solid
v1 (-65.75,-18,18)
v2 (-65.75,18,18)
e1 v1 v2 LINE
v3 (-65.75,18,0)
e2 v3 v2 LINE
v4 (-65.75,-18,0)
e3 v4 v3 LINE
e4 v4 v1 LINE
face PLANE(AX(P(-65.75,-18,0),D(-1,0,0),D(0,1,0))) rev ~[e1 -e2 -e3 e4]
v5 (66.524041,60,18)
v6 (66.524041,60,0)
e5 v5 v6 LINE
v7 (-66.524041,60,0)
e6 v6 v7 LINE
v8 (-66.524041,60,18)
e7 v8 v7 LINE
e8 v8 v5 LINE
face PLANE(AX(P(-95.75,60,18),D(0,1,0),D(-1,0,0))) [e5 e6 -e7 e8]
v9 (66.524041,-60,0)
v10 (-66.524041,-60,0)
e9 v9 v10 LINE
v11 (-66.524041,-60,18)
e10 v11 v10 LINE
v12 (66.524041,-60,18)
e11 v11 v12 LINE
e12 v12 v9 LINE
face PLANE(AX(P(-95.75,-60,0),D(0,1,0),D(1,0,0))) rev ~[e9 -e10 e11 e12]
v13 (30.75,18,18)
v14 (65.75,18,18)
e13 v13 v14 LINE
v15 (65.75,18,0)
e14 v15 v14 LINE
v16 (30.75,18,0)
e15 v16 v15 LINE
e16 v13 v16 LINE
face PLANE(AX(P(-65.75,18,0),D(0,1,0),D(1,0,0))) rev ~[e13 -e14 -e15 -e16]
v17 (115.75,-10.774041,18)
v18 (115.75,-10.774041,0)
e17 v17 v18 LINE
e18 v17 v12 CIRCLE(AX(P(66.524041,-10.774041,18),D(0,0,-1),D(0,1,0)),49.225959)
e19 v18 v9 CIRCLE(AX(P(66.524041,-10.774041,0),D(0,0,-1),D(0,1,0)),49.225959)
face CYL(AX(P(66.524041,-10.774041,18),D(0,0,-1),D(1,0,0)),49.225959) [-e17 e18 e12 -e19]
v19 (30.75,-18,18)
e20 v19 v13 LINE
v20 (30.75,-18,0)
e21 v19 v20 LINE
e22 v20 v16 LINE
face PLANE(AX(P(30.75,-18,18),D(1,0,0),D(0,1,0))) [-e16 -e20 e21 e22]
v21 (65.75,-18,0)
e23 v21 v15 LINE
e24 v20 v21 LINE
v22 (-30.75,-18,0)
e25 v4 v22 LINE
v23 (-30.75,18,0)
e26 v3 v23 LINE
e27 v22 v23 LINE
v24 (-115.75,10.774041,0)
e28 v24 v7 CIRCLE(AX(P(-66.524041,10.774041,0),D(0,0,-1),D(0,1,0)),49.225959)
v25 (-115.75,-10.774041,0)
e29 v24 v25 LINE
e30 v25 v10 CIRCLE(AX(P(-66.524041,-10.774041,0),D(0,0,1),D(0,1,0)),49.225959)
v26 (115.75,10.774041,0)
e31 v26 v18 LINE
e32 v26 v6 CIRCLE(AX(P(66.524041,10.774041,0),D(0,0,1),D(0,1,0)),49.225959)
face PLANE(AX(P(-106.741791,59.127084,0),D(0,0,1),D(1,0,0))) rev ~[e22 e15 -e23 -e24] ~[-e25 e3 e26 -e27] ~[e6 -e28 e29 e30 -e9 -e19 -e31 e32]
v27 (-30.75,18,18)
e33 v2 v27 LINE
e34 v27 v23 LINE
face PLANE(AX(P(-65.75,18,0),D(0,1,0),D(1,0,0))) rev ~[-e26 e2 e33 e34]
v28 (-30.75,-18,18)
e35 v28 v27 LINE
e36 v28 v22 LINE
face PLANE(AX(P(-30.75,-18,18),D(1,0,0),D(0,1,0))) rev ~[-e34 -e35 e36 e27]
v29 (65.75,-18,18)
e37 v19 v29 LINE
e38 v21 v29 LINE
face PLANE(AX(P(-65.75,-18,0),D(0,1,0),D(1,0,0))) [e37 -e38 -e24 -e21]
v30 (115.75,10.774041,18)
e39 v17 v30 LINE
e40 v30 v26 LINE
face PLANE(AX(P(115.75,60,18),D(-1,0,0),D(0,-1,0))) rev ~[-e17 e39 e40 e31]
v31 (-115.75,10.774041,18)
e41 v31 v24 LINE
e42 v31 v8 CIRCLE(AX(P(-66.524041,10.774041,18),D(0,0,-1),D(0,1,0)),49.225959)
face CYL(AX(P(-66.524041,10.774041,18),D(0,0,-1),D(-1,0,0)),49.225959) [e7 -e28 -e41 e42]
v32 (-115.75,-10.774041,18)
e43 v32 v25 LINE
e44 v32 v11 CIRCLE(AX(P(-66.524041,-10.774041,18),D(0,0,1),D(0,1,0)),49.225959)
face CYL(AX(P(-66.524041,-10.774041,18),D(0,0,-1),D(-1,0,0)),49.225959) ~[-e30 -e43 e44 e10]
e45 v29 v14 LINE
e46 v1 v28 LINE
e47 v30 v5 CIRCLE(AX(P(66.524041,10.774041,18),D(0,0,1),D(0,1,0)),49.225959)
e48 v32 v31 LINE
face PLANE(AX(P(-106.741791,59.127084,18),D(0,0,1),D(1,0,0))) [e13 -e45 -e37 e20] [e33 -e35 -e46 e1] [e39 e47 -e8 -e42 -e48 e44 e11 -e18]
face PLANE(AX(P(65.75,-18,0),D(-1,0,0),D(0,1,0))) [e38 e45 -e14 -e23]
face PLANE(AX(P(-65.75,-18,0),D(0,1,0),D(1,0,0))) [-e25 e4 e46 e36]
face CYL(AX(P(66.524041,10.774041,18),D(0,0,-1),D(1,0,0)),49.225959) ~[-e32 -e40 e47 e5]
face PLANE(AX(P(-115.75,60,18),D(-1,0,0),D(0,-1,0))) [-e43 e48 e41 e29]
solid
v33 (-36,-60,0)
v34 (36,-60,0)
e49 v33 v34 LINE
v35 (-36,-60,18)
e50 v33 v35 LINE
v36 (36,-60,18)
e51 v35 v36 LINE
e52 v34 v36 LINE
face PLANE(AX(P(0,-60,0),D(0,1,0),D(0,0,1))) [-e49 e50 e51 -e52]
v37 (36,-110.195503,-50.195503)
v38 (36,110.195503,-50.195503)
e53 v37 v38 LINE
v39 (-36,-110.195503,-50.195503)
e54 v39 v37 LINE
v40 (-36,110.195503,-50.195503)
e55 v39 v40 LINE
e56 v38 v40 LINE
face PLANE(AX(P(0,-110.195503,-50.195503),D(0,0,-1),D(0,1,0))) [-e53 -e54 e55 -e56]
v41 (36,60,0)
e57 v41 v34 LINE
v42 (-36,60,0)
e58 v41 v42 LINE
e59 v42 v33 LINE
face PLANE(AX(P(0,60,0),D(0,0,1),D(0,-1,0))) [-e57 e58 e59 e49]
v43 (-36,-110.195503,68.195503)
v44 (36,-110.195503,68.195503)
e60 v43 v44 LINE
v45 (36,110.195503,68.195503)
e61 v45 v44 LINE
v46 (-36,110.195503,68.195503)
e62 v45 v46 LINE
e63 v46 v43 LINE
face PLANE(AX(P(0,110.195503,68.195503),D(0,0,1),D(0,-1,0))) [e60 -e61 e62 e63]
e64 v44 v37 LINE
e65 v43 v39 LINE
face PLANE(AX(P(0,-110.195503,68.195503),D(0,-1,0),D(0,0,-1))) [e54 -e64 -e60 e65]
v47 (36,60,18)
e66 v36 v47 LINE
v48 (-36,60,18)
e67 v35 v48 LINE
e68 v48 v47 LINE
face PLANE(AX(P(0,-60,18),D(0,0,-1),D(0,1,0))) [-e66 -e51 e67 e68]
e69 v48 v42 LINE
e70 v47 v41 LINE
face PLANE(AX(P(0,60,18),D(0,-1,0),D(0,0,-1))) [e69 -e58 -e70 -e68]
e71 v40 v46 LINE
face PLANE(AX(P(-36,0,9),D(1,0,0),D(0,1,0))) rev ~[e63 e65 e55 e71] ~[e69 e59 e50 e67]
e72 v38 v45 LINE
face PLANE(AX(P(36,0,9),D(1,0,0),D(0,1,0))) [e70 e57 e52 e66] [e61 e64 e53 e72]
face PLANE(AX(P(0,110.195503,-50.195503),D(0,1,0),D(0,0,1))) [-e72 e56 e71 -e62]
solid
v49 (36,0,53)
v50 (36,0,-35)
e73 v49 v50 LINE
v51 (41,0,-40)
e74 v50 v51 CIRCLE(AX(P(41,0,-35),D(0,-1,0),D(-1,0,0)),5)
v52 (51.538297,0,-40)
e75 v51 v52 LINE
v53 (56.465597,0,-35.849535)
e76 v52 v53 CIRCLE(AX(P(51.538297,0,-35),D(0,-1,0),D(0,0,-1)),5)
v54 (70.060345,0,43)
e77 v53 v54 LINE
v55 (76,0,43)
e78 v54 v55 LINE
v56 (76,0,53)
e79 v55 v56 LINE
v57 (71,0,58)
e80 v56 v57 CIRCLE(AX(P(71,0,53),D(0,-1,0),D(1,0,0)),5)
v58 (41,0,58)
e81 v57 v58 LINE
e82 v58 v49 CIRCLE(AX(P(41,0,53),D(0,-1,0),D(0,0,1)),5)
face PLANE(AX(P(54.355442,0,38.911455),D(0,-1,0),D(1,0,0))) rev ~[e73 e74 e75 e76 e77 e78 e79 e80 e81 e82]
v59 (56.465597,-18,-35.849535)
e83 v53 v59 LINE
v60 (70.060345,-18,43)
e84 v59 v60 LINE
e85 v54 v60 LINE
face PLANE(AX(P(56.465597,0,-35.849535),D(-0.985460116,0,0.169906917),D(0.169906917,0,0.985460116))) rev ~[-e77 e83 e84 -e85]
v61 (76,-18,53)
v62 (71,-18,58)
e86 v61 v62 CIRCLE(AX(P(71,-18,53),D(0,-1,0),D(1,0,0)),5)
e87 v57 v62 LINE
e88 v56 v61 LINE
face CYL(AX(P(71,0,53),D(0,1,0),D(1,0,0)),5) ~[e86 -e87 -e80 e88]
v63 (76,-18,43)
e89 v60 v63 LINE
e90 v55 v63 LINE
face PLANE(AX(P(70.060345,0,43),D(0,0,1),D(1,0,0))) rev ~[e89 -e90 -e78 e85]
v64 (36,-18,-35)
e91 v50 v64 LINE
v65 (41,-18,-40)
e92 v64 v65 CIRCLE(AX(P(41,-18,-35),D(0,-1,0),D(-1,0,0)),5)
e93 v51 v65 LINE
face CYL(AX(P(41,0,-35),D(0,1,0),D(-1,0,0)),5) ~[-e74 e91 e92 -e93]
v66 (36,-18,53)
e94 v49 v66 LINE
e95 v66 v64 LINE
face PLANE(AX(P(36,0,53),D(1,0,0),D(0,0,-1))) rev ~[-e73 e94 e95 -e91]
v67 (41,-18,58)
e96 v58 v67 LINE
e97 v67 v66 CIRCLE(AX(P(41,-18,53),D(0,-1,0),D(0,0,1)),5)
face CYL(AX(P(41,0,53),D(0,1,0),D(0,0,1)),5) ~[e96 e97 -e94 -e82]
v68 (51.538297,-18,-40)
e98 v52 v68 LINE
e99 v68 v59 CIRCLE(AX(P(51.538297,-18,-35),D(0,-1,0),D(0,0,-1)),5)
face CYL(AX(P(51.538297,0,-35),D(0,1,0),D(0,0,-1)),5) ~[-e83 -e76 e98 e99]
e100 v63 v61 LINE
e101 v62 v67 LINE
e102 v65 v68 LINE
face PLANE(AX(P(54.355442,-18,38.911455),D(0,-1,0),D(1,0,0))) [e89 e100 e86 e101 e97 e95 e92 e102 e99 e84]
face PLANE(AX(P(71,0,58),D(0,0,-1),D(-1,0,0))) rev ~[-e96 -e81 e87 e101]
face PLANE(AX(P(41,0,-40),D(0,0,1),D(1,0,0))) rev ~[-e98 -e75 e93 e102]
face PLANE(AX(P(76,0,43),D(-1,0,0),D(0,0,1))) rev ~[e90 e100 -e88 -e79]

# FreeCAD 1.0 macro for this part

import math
import FreeCAD as App
import Part
import Sketcher
from FreeCAD import Vector


def edges_at(feature, points):
    """Names of the edges that pass closest to the given points."""
    edges = feature.Shape.Edges
    near = lambda p: min(range(len(edges)), key=lambda i: edges[i].distToShape(Part.Vertex(*p))[0])
    return sorted({f"Edge{near(p) + 1}" for p in points})


def add_polygon(sketch, points):
    """Adds a closed chain of lines whose ends are joined by coincident constraints."""
    first, n = sketch.GeometryCount, len(points)
    for a, b in zip(points, points[1:] + points[:1]):
        sketch.addGeometry(Part.LineSegment(App.Vector(*a, 0), App.Vector(*b, 0)), False)
    for i in range(n):
        sketch.addConstraint(Sketcher.Constraint("Coincident", first + i, 2, first + (i + 1) % n, 1))

doc = App.newDocument("Part")
body = doc.addObject("PartDesign::Body", "Body")

sketch1 = body.newObject("Sketcher::SketchObject", "Sketch")
sketch1.AttachmentSupport = (doc.getObject("XY_Plane"), [""])
sketch1.MapMode = "FlatFace"
sketch1.addGeometry(Part.LineSegment(Vector(-95.75, -60, 0), Vector(95.75, -60, 0)), False)
sketch1.addGeometry(Part.ArcOfCircle(Part.Circle(Vector(95.75, -10, 0), Vector(0, 0, 1), 50), math.radians(-90), math.radians(0)), False)
sketch1.addGeometry(Part.LineSegment(Vector(145.75, -10, 0), Vector(145.75, 10, 0)), False)
sketch1.addGeometry(Part.ArcOfCircle(Part.Circle(Vector(95.75, 10, 0), Vector(0, 0, 1), 50), math.radians(0), math.radians(90)), False)
sketch1.addGeometry(Part.LineSegment(Vector(95.75, 60, 0), Vector(-95.75, 60, 0)), False)
sketch1.addGeometry(Part.ArcOfCircle(Part.Circle(Vector(-95.75, 10, 0), Vector(0, 0, 1), 50), math.radians(90), math.radians(180)), False)
sketch1.addGeometry(Part.LineSegment(Vector(-145.75, 10, 0), Vector(-145.75, -10, 0)), False)
sketch1.addGeometry(Part.ArcOfCircle(Part.Circle(Vector(-95.75, -10, 0), Vector(0, 0, 1), 50), math.radians(180), math.radians(270)), False)
add_polygon(sketch1, [(65.75, -18), (-65.75, -18), (-65.75, 18), (65.75, 18)])
sketch1.addConstraint([
    Sketcher.Constraint("Tangent", 0, 2, 1, 1),
    Sketcher.Constraint("Tangent", 1, 2, 2, 1),
    Sketcher.Constraint("Tangent", 2, 2, 3, 1),
    Sketcher.Constraint("Tangent", 3, 2, 4, 1),
    Sketcher.Constraint("Tangent", 4, 2, 5, 1),
    Sketcher.Constraint("Tangent", 5, 2, 6, 1),
    Sketcher.Constraint("Tangent", 6, 2, 7, 1),
    Sketcher.Constraint("Tangent", 7, 2, 0, 1),
    Sketcher.Constraint("Horizontal", 0),
    Sketcher.Constraint("Vertical", 2),
    Sketcher.Constraint("Horizontal", 4),
    Sketcher.Constraint("Vertical", 6),
    Sketcher.Constraint("Horizontal", 8),
    Sketcher.Constraint("Vertical", 9),
    Sketcher.Constraint("Horizontal", 10),
    Sketcher.Constraint("Vertical", 11),
    Sketcher.Constraint("Equal", 1, 3),
    Sketcher.Constraint("Equal", 3, 5),
    Sketcher.Constraint("Equal", 5, 7),
    Sketcher.Constraint("Symmetric", 1, 3, 5, 3, -1, 1),
    Sketcher.Constraint("Symmetric", 8, 2, 10, 2, -1, 1),
    Sketcher.Constraint("Radius", 1, 50.0),
    Sketcher.Constraint("DistanceY", 2, 1, 2, 2, 20.0),
    Sketcher.Constraint("DistanceY", 9, 1, 9, 2, 36.0),
    Sketcher.Constraint("DistanceX", 0, 1, 0, 2, 191.5),
    Sketcher.Constraint("DistanceX", 8, 2, 8, 1, 131.5),
])
pad1 = body.newObject("PartDesign::Pad", "Pad")
pad1.Profile = sketch1
pad1.Length = 18

sketch2 = body.newObject("Sketcher::SketchObject", "Sketch001")
sketch2.AttachmentSupport = (doc.getObject("XY_Plane"), [""])
sketch2.MapMode = "FlatFace"
sketch2.AttachmentOffset = App.Placement(Vector(0, 0, 18), App.Rotation())
add_polygon(sketch2, [(-30.75, 18), (-30.75, -18), (30.75, -18), (30.75, 18)])
sketch2.addConstraint([
    Sketcher.Constraint("Vertical", 0),
    Sketcher.Constraint("Horizontal", 1),
    Sketcher.Constraint("Vertical", 2),
    Sketcher.Constraint("Horizontal", 3),
    Sketcher.Constraint("Symmetric", 0, 2, 2, 2, -1, 1),
    Sketcher.Constraint("DistanceY", 0, 2, 0, 1, 36.0),
    Sketcher.Constraint("DistanceX", 1, 1, 1, 2, 61.5),
])
pad2 = body.newObject("PartDesign::Pad", "Pad001")
pad2.Profile = sketch2
pad2.Length = 18
pad2.Reversed = True

sketch3 = body.newObject("Sketcher::SketchObject", "Sketch002")
sketch3.AttachmentSupport = (doc.getObject("XY_Plane"), [""])
sketch3.MapMode = "FlatFace"
sketch3.AttachmentOffset = App.Placement(Vector(0, 0, 18), App.Rotation())
add_polygon(sketch3, [(-171.135291, -60), (-115.75, -60), (-115.75, 60), (-171.135291, 60)])
add_polygon(sketch3, [(115.75, -60), (180.930644, -60), (180.930644, 60), (115.75, 60)])
sketch3.addConstraint([
    Sketcher.Constraint("Horizontal", 0),
    Sketcher.Constraint("Vertical", 1),
    Sketcher.Constraint("Horizontal", 2),
    Sketcher.Constraint("Vertical", 3),
    Sketcher.Constraint("Horizontal", 4),
    Sketcher.Constraint("Vertical", 5),
    Sketcher.Constraint("Horizontal", 6),
    Sketcher.Constraint("Vertical", 7),
    Sketcher.Constraint("Symmetric", 0, 2, 6, 2, -1, 1),
    Sketcher.Constraint("Horizontal", 3, 2, 4, 2),
    Sketcher.Constraint("Horizontal", 2, 2, 5, 2),
    Sketcher.Constraint("DistanceY", 1, 1, 1, 2, 120.0),
    Sketcher.Constraint("DistanceX", 1, 2, 6, 2, 231.5),
    Sketcher.Constraint("DistanceX", 0, 1, 0, 2, 55.385291),
    Sketcher.Constraint("DistanceX", 4, 1, 4, 2, 65.180644),
])
pocket1 = body.newObject("PartDesign::Pocket", "Pocket")
pocket1.Profile = sketch3
pocket1.Length = 25

sketch4 = body.newObject("Sketcher::SketchObject", "Sketch003")
sketch4.AttachmentSupport = (doc.getObject("XY_Plane"), [""])
sketch4.MapMode = "FlatFace"
sketch4.AttachmentOffset = App.Placement(Vector(0, 0, 18), App.Rotation())
sketch4.addGeometry([
    Part.LineSegment(Vector(-115.75, 60, 0), Vector(-115.75, 55.825757, 0)),
    Part.ArcOfCircle(Part.Circle(Vector(-95.75, 10, 0), Vector(0, 0, 1), 50), math.radians(90), math.radians(113.578178)),
    Part.LineSegment(Vector(-95.75, 60, 0), Vector(-115.75, 60, 0)),
    Part.ArcOfCircle(Part.Circle(Vector(95.75, 10, 0), Vector(0, 0, 1), 50), math.radians(66.421822), math.radians(90)),
    Part.LineSegment(Vector(115.75, 55.825757, 0), Vector(115.75, 60, 0)),
    Part.LineSegment(Vector(115.75, 60, 0), Vector(95.75, 60, 0)),
    Part.ArcOfCircle(Part.Circle(Vector(95.75, -10, 0), Vector(0, 0, 1), 50), math.radians(-90), math.radians(-66.421822)),
    Part.LineSegment(Vector(95.75, -60, 0), Vector(115.75, -60, 0)),
    Part.LineSegment(Vector(115.75, -60, 0), Vector(115.75, -55.825757, 0)),
    Part.LineSegment(Vector(-115.75, -55.825757, 0), Vector(-115.75, -60, 0)),
    Part.LineSegment(Vector(-115.75, -60, 0), Vector(-95.75, -60, 0)),
    Part.ArcOfCircle(Part.Circle(Vector(-95.75, -10, 0), Vector(0, 0, 1), 50), math.radians(-113.578178), math.radians(-90)),
], False)
sketch4.addConstraint([
    Sketcher.Constraint("Coincident", 0, 2, 1, 2),
    Sketcher.Constraint("Tangent", 1, 1, 2, 1),
    Sketcher.Constraint("Coincident", 2, 2, 0, 1),
    Sketcher.Constraint("Coincident", 3, 1, 4, 1),
    Sketcher.Constraint("Coincident", 4, 2, 5, 1),
    Sketcher.Constraint("Tangent", 5, 2, 3, 2),
    Sketcher.Constraint("Tangent", 6, 1, 7, 1),
    Sketcher.Constraint("Coincident", 7, 2, 8, 1),
    Sketcher.Constraint("Coincident", 8, 2, 6, 2),
    Sketcher.Constraint("Coincident", 9, 2, 10, 1),
    Sketcher.Constraint("Tangent", 10, 2, 11, 2),
    Sketcher.Constraint("Coincident", 11, 1, 9, 1),
    Sketcher.Constraint("Vertical", 0),
    Sketcher.Constraint("Horizontal", 2),
    Sketcher.Constraint("Vertical", 4),
    Sketcher.Constraint("Horizontal", 5),
    Sketcher.Constraint("Horizontal", 7),
    Sketcher.Constraint("Vertical", 8),
    Sketcher.Constraint("Vertical", 9),
    Sketcher.Constraint("Horizontal", 10),
    Sketcher.Constraint("Equal", 1, 3),
    Sketcher.Constraint("Equal", 3, 6),
    Sketcher.Constraint("Equal", 6, 11),
    Sketcher.Constraint("Symmetric", 1, 3, 6, 3, -1, 1),
    Sketcher.Constraint("Symmetric", 3, 3, 11, 3, -1, 1),
    Sketcher.Constraint("Symmetric", 1, 3, 3, 3, -2),
    Sketcher.Constraint("Horizontal", 0, 2, 3, 1),
    Sketcher.Constraint("Horizontal", 8, 2, 11, 1),
    Sketcher.Constraint("Vertical", 4, 2, 7, 2),
    Sketcher.Constraint("Radius", 1, 50.0),
    Sketcher.Constraint("DistanceX", 2, 2, 2, 1, 20.0),
    Sketcher.Constraint("DistanceY", -1, 1, 1, 3, 10.0),
    Sketcher.Constraint("DistanceX", 1, 3, 3, 3, 191.5),
])
pad3 = body.newObject("PartDesign::Pad", "Pad002")
pad3.Profile = sketch4
pad3.Length = 18
pad3.Reversed = True
doc.recompute()

fillet = body.newObject("PartDesign::Fillet", "Fillet")
fillet.Base = (pad3, edges_at(pad3, [
    (-115.75, 60, 9),
    (-115.75, -60, 9),
    (115.75, -60, 9),
    (115.75, 60, 9),
]))
fillet.Radius = 49.225959
body2 = doc.addObject("PartDesign::Body", "Body001")

sketch5 = body2.newObject("Sketcher::SketchObject", "Sketch004")
sketch5.AttachmentSupport = (doc.getObject("YZ_Plane001"), [""])
sketch5.MapMode = "FlatFace"
add_polygon(sketch5, [(110.195503, 68.195503), (-110.195503, 68.195503), (-110.195503, -50.195503), (110.195503, -50.195503)])
add_polygon(sketch5, [(60, 0), (-60, 0), (-60, 18), (60, 18)])
sketch5.addConstraint([
    Sketcher.Constraint("Horizontal", 0),
    Sketcher.Constraint("Vertical", 1),
    Sketcher.Constraint("Horizontal", 2),
    Sketcher.Constraint("Vertical", 3),
    Sketcher.Constraint("Horizontal", 4),
    Sketcher.Constraint("Vertical", 5),
    Sketcher.Constraint("Horizontal", 6),
    Sketcher.Constraint("Vertical", 7),
    Sketcher.Constraint("Symmetric", 4, 2, 7, 2, -1, 1),
    Sketcher.Constraint("DistanceX", 4, 2, 4, 1, 120.0),
    Sketcher.Constraint("DistanceY", 5, 1, 5, 2, 18.0),
    Sketcher.Constraint("DistanceX", 0, 2, 0, 1, 220.391005),
    Sketcher.Constraint("DistanceY", 1, 2, 1, 1, 118.391005),
    Sketcher.Constraint("DistanceX", 0, 2, -1, 1, 110.195503),
    Sketcher.Constraint("DistanceY", -1, 1, 0, 2, 68.195503),
])
pad4 = body2.newObject("PartDesign::Pad", "Pad003")
pad4.Profile = sketch5
pad4.Length = 72
pad4.Midplane = True
body3 = doc.addObject("PartDesign::Body", "Body002")

sketch6 = body3.newObject("Sketcher::SketchObject", "Sketch005")
sketch6.AttachmentSupport = (doc.getObject("XZ_Plane002"), [""])
sketch6.MapMode = "FlatFace"
sketch6.addGeometry([
    Part.ArcOfCircle(Part.Circle(Vector(41, 53, 0), Vector(0, 0, 1), 5), math.radians(90), math.radians(180)),
    Part.LineSegment(Vector(36, 53, 0), Vector(36, -35, 0)),
    Part.ArcOfCircle(Part.Circle(Vector(41, -35, 0), Vector(0, 0, 1), 5), math.radians(180), math.radians(270)),
    Part.LineSegment(Vector(41, -40, 0), Vector(51.538297, -40, 0)),
    Part.ArcOfCircle(Part.Circle(Vector(51.538297, -35, 0), Vector(0, 0, 1), 5), math.radians(-90), math.radians(-9.782407)),
    Part.LineSegment(Vector(56.465597, -35.849535, 0), Vector(70.060345, 43, 0)),
    Part.LineSegment(Vector(70.060345, 43, 0), Vector(76, 43, 0)),
    Part.LineSegment(Vector(76, 43, 0), Vector(76, 53, 0)),
    Part.ArcOfCircle(Part.Circle(Vector(71, 53, 0), Vector(0, 0, 1), 5), math.radians(0), math.radians(90)),
    Part.LineSegment(Vector(71, 58, 0), Vector(41, 58, 0)),
], False)
sketch6.addConstraint([
    Sketcher.Constraint("Tangent", 0, 2, 1, 1),
    Sketcher.Constraint("Tangent", 1, 2, 2, 1),
    Sketcher.Constraint("Tangent", 2, 2, 3, 1),
    Sketcher.Constraint("Tangent", 3, 2, 4, 1),
    Sketcher.Constraint("Tangent", 4, 2, 5, 1),
    Sketcher.Constraint("Coincident", 5, 2, 6, 1),
    Sketcher.Constraint("Coincident", 6, 2, 7, 1),
    Sketcher.Constraint("Tangent", 7, 2, 8, 1),
    Sketcher.Constraint("Tangent", 8, 2, 9, 1),
    Sketcher.Constraint("Tangent", 9, 2, 0, 1),
    Sketcher.Constraint("Vertical", 1),
    Sketcher.Constraint("Horizontal", 3),
    Sketcher.Constraint("Horizontal", 6),
    Sketcher.Constraint("Vertical", 7),
    Sketcher.Constraint("Horizontal", 9),
    Sketcher.Constraint("Equal", 0, 2),
    Sketcher.Constraint("Equal", 2, 4),
    Sketcher.Constraint("Equal", 4, 8),
    Sketcher.Constraint("Radius", 0, 5.0),
    Sketcher.Constraint("DistanceX", 9, 2, 9, 1, 30.0),
    Sketcher.Constraint("DistanceY", 1, 2, 1, 1, 88.0),
    Sketcher.Constraint("DistanceY", 7, 1, 7, 2, 10.0),
    Sketcher.Constraint("DistanceX", -1, 1, 0, 3, 41.0),
    Sketcher.Constraint("DistanceY", -1, 1, 0, 3, 53.0),
    Sketcher.Constraint("DistanceX", 4, 3, 4, 2, 4.927301),
    Sketcher.Constraint("DistanceX", 3, 1, 3, 2, 10.538297),
])
pad5 = body3.newObject("PartDesign::Pad", "Pad004")
pad5.Profile = sketch6
pad5.Length = 18

doc.recompute()
